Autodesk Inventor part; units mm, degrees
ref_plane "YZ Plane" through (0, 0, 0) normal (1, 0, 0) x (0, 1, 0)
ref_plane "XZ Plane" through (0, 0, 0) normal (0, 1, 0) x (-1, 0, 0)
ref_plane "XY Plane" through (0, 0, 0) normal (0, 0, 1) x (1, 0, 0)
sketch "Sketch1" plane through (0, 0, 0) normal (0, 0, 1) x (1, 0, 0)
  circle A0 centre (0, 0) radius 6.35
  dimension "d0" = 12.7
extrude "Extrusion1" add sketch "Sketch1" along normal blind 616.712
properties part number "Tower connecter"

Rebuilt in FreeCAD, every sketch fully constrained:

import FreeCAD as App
import Part
import Sketcher
from FreeCAD import Vector
Q = App.Units.Quantity

doc = App.newDocument("Part")
body = doc.addObject("PartDesign::Body", "Body")

sketch1 = body.newObject("Sketcher::SketchObject", "Sketch")
sketch1.AttachmentSupport = (doc.getObject("XY_Plane"), [""])
sketch1.MapMode = "FlatFace"
sketch1.addGeometry(Part.Circle(Vector(0, 0, 0), Vector(0, 0, 1), 6), False)
sketch1.addConstraint(Sketcher.Constraint("Coincident", 0, 3, -1, 1))
sketch1.addConstraint(Sketcher.Constraint("Diameter", 0, Q("0.5 in")))
pad1 = body.newObject("PartDesign::Pad", "Pad")
pad1.Profile = sketch1
pad1.Length = Q("24.28 in")

doc.recompute()
